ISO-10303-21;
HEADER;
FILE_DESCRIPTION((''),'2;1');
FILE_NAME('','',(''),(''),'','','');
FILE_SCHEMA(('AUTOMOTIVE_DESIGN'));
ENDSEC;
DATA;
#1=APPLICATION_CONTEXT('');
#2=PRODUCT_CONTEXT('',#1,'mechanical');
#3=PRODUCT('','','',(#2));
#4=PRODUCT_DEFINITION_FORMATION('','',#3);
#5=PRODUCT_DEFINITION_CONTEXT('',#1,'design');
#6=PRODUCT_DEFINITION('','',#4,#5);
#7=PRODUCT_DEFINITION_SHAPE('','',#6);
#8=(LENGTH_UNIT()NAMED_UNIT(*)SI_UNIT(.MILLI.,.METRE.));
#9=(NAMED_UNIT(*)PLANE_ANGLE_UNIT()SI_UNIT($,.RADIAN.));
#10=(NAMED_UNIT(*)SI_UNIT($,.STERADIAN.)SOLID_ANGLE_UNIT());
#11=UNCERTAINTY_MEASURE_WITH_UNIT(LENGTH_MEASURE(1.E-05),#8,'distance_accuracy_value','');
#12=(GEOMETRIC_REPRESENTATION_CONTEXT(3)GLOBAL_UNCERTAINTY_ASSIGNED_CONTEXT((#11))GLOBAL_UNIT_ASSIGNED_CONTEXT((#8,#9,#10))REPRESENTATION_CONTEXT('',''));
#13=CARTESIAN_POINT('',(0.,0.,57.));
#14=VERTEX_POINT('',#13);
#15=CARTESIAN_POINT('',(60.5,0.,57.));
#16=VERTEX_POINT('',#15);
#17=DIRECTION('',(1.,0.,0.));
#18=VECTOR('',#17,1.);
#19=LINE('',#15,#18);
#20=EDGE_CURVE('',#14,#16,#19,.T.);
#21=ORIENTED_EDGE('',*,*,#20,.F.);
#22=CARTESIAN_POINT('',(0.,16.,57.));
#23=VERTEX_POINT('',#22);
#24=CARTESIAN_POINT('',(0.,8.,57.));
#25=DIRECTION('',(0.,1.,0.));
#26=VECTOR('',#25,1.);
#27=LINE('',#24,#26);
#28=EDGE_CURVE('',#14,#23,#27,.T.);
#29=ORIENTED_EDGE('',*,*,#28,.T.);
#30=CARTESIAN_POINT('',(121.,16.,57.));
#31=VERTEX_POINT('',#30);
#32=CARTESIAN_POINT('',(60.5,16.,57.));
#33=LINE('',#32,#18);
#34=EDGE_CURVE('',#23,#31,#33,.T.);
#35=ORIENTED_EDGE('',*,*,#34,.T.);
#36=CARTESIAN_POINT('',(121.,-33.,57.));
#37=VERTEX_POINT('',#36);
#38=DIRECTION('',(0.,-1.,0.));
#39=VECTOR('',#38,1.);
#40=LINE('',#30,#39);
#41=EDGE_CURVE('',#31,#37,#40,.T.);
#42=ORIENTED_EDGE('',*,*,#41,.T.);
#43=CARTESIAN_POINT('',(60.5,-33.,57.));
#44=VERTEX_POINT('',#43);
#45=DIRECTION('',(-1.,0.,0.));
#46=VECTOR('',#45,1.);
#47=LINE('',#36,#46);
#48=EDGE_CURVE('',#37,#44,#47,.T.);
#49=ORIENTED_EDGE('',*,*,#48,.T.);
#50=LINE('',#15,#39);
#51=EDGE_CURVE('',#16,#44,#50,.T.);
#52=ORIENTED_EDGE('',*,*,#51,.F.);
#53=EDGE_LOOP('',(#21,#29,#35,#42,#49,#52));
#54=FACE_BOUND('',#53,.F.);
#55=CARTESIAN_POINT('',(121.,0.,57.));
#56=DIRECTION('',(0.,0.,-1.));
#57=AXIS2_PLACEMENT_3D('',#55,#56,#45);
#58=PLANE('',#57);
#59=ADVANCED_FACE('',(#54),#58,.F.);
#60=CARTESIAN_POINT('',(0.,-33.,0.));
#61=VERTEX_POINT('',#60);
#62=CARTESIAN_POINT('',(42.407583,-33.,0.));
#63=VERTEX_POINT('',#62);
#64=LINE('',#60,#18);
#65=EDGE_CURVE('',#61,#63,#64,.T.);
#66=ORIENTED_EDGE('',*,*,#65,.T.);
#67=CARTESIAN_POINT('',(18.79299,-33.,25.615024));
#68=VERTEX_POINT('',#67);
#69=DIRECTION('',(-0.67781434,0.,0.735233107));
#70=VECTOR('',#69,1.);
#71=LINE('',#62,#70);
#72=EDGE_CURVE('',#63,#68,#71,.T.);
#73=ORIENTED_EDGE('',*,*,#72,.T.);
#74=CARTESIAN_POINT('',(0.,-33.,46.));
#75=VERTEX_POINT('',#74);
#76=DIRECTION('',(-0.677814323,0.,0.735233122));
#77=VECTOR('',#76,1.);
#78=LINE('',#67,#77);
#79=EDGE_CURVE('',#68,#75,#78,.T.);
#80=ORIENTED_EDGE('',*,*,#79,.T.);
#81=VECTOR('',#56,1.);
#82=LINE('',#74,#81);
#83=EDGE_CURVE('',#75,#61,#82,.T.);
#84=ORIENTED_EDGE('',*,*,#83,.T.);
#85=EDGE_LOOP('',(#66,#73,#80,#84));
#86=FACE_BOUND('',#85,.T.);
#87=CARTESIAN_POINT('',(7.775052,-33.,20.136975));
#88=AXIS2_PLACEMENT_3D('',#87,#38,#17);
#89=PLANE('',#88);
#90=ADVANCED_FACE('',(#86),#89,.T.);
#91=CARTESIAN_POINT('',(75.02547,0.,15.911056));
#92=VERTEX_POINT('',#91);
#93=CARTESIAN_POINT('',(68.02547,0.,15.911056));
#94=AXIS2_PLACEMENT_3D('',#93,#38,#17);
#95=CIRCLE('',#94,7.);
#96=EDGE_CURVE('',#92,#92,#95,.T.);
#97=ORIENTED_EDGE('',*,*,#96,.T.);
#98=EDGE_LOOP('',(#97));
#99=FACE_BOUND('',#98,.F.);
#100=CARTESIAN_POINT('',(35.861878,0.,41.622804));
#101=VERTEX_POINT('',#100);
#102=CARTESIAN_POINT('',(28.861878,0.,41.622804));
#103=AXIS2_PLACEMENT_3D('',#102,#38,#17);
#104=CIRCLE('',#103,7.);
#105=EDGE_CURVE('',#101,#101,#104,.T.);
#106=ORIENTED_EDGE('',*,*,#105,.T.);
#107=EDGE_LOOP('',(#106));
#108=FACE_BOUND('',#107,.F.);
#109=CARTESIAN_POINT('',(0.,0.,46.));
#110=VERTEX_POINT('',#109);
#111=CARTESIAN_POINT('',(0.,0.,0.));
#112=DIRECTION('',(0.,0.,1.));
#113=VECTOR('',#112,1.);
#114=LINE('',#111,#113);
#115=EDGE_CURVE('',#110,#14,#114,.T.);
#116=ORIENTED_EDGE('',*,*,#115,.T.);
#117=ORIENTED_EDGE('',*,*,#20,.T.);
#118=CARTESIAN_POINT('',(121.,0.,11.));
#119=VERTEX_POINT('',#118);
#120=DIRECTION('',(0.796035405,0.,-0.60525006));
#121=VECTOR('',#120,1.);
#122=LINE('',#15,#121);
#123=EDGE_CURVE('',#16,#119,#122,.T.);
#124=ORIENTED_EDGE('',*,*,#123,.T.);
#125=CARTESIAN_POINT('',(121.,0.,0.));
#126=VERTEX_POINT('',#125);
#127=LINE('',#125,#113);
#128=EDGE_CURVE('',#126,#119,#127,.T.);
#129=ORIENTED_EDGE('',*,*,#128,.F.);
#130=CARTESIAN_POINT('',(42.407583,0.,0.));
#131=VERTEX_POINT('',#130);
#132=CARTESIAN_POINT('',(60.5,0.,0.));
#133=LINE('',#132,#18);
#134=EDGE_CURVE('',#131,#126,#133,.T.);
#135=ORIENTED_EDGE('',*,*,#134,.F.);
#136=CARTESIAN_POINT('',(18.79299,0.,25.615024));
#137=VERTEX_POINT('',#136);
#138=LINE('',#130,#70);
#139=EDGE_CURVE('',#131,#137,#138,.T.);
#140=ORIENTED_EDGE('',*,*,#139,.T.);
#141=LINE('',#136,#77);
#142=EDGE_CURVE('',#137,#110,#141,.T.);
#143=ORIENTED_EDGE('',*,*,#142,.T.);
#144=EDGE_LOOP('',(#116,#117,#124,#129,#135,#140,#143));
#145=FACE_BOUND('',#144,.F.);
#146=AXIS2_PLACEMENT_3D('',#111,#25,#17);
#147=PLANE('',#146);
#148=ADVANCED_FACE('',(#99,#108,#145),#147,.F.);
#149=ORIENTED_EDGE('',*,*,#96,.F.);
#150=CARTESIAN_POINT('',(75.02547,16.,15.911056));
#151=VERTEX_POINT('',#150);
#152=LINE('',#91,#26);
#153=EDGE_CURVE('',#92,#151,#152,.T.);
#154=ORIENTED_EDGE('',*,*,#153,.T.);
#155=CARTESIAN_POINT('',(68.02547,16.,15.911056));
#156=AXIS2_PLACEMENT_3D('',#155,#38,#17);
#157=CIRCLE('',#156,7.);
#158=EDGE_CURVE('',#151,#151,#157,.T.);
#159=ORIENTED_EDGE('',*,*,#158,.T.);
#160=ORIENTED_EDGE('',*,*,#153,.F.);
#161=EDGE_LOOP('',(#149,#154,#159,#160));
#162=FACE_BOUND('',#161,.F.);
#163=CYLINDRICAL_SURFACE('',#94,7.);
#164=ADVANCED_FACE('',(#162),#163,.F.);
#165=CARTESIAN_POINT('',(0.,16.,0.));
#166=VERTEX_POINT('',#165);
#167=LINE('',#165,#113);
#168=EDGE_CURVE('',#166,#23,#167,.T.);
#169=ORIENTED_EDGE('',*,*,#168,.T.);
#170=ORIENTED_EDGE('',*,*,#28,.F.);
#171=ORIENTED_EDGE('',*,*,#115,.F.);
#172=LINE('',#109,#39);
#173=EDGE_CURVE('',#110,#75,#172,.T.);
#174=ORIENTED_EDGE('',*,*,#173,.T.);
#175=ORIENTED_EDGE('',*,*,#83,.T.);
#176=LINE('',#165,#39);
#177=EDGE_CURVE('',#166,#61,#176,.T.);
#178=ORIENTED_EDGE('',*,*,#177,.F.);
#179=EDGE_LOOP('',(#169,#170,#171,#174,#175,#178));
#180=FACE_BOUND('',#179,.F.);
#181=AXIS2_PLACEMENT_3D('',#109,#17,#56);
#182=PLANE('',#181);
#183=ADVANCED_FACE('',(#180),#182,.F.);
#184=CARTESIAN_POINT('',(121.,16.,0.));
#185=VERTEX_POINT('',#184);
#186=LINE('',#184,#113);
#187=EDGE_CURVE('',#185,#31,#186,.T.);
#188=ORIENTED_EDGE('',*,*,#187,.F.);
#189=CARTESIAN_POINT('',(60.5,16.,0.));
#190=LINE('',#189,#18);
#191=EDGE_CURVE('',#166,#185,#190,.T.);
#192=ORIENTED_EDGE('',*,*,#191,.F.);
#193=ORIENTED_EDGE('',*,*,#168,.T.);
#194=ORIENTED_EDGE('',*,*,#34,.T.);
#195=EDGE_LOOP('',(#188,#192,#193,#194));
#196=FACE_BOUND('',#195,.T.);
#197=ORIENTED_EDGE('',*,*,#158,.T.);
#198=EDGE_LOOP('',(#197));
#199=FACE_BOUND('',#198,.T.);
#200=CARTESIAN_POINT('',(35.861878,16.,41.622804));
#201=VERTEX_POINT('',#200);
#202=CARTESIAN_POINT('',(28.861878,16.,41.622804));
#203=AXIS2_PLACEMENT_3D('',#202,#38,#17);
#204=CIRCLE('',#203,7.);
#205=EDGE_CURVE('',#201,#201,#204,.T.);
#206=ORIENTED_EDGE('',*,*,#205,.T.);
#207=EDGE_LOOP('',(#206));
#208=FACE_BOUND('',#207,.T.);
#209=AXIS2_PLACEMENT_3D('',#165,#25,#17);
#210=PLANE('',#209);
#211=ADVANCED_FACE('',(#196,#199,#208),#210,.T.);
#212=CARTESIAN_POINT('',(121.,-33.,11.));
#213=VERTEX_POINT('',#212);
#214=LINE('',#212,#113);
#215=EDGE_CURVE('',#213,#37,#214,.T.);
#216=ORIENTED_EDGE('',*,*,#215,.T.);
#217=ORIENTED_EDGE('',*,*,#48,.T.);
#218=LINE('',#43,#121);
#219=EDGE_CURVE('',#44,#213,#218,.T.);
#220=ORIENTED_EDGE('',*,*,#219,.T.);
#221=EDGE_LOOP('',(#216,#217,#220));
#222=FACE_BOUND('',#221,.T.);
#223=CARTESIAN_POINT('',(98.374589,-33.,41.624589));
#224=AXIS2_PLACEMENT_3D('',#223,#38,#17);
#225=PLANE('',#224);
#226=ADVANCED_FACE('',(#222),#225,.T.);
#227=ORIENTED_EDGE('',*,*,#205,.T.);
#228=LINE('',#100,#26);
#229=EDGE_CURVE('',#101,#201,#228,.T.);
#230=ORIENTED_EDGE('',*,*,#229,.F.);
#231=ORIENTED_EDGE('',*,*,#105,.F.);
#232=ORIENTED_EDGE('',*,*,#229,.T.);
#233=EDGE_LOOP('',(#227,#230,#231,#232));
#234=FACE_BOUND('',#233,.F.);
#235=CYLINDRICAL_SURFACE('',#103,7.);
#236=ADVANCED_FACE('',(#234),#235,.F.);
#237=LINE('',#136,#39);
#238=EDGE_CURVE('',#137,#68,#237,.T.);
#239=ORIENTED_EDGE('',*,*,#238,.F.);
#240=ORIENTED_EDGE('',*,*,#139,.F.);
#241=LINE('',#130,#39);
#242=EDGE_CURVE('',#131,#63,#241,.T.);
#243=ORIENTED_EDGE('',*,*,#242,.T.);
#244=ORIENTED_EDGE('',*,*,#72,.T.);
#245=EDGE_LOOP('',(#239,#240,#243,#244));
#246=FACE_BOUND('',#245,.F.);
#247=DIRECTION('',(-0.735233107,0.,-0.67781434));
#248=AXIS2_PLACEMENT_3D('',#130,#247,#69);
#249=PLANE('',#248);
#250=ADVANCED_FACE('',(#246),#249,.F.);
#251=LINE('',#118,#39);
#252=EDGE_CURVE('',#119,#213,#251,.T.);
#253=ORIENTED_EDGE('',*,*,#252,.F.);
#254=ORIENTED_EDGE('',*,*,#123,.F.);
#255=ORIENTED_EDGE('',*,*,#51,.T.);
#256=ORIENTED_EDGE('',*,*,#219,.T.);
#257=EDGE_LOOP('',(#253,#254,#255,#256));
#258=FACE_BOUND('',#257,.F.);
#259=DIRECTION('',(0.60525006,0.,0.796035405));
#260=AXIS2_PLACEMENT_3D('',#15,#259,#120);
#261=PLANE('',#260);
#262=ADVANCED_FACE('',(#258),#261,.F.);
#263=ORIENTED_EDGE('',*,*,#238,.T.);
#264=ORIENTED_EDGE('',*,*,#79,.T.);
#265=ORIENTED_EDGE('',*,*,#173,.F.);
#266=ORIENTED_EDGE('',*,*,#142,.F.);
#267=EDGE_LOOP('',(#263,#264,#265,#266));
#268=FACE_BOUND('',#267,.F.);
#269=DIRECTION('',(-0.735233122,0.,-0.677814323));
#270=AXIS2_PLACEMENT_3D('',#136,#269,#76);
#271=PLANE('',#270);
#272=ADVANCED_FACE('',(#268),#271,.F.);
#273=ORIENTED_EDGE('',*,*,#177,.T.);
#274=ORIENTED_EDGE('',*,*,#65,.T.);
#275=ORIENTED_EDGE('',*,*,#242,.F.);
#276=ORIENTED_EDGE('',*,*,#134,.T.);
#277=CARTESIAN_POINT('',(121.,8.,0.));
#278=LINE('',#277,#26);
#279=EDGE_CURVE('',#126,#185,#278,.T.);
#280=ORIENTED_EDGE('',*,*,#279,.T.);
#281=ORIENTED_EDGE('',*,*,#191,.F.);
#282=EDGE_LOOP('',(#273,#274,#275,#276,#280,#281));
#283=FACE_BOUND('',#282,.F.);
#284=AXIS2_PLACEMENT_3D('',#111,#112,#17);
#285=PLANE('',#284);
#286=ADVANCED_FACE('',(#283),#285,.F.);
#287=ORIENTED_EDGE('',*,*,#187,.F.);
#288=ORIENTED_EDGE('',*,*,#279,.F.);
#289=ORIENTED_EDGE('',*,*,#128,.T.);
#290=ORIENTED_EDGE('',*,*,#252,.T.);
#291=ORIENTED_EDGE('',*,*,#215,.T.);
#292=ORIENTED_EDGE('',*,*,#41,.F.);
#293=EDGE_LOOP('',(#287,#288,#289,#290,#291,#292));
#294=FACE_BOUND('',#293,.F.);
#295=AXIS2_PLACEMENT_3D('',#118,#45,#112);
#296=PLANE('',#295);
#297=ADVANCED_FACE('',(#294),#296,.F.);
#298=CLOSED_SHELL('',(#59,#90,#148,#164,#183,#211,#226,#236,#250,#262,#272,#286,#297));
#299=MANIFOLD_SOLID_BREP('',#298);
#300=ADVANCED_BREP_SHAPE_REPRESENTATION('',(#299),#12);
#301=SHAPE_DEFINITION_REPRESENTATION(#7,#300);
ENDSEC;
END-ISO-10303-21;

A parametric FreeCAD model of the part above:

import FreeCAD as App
import Part
import Sketcher
Q = App.Units.Quantity


def add_polygon(sketch, points):
    """Adds a closed chain of lines whose ends are joined by coincident constraints."""
    first, n = sketch.GeometryCount, len(points)
    for a, b in zip(points, points[1:] + points[:1]):
        sketch.addGeometry(Part.LineSegment(App.Vector(*a, 0), App.Vector(*b, 0)), False)
    for i in range(n):
        sketch.addConstraint(Sketcher.Constraint("Coincident", first + i, 2, first + (i + 1) % n, 1))

doc = App.newDocument("Part")
params = doc.addObject("Spreadsheet::Sheet", "Params")
for row, (alias, value) in enumerate([
    ("sketch1_width", "121 mm"),
    ("sketch1_height", "16 mm"),
    ("pad1_length", "57 mm"),
    ("sketch2_height", "46 mm"),
    ("pad2_length", "33 mm"),
    ("sketch3_height", "46 mm"),
    ("sketch3_width", "60.5 mm"),
    ("pad3_length", "33 mm"),
    ("sketch4_diameter", "14 mm"),
], start=1):
    params.set(f"A{row}", alias)
    params.set(f"B{row}", "=" + value)
    params.setAlias(f"B{row}", alias)

body = doc.addObject("PartDesign::Body", "Body")

# Sketch on XY plane
sketch1 = body.newObject("Sketcher::SketchObject", "Sketch")
sketch1.AttachmentSupport = (doc.getObject("XY_Plane"), [""])
sketch1.MapMode = "FlatFace"
add_polygon(sketch1, [(0, 16), (0, 0), (121, 0), (121, 16)])  # lines 0-3
sketch1.addConstraint([
    Sketcher.Constraint("Vertical", 0),
    Sketcher.Constraint("Horizontal", 1),
    Sketcher.Constraint("Vertical", 2),
    Sketcher.Constraint("Horizontal", 3),
    Sketcher.Constraint("Coincident", 0, 2, -1, 1),
    Sketcher.Constraint("DistanceX", 1, 1, 1, 2, Q("121 mm")),
    Sketcher.Constraint("DistanceY", 0, 2, 0, 1, Q("16 mm")),
])
sketch1.setExpression("Constraints[9]", "Params.sketch1_width")
sketch1.setExpression("Constraints[10]", "Params.sketch1_height")
pad1 = body.newObject("PartDesign::Pad", "Pad")
pad1.Profile = sketch1
pad1.setExpression("Length", "Params.pad1_length")

# Sketch on XZ plane
sketch2 = body.newObject("Sketcher::SketchObject", "Sketch001")
sketch2.AttachmentSupport = (doc.getObject("XZ_Plane"), [""])
sketch2.MapMode = "FlatFace"
add_polygon(sketch2, [(19, 26), (0, 46), (0, 0), (42, 0)])  # lines 0-3
sketch2.addConstraint([
    Sketcher.Constraint("Vertical", 1),
    Sketcher.Constraint("Horizontal", 2),
    Sketcher.Constraint("Coincident", 1, 2, -1, 1),
    Sketcher.Constraint("Parallel", 0, 3),
    Sketcher.Constraint("DistanceY", 1, 2, 1, 1, Q("46 mm")),
    Sketcher.Constraint("DistanceX", 2, 1, 2, 2, Q("42.407583 mm")),
    Sketcher.Constraint("DistanceX", -1, 1, 3, 2, Q("18.79299 mm")),
])
sketch2.setExpression("Constraints[8]", "Params.sketch2_height")
pad2 = body.newObject("PartDesign::Pad", "Pad001")
pad2.Profile = sketch2
pad2.setExpression("Length", "Params.pad2_length")

# Sketch on XZ plane
sketch3 = body.newObject("Sketcher::SketchObject", "Sketch002")
sketch3.AttachmentSupport = (doc.getObject("XZ_Plane"), [""])
sketch3.MapMode = "FlatFace"
add_polygon(sketch3, [(121, 11), (121, 57), (60, 57)])  # lines 0-2
sketch3.addConstraint([
    Sketcher.Constraint("Vertical", 0),
    Sketcher.Constraint("Horizontal", 1),
    Sketcher.Constraint("DistanceY", 0, 1, 0, 2, Q("46 mm")),
    Sketcher.Constraint("DistanceX", 1, 2, 1, 1, Q("60.5 mm")),
    Sketcher.Constraint("DistanceX", -1, 1, 0, 2, Q("121 mm")),
    Sketcher.Constraint("DistanceY", -1, 1, 0, 2, Q("57 mm")),
])
sketch3.setExpression("Constraints[5]", "Params.sketch3_height")
sketch3.setExpression("Constraints[6]", "Params.sketch3_width")
pad3 = body.newObject("PartDesign::Pad", "Pad002")
pad3.Profile = sketch3
pad3.setExpression("Length", "Params.pad3_length")

# Sketch on XZ plane
sketch4 = body.newObject("Sketcher::SketchObject", "Sketch003")
sketch4.AttachmentSupport = (doc.getObject("XZ_Plane"), [""])
sketch4.MapMode = "FlatFace"
sketch4.addGeometry([
    Part.Circle(App.Vector(29, 42, 0), App.Vector(0, 0, 1), 7),
    Part.Circle(App.Vector(68, 16, 0), App.Vector(0, 0, 1), 7),
], False)
sketch4.addConstraint([
    Sketcher.Constraint("Equal", 0, 1),
    Sketcher.Constraint("Diameter", 0, Q("14 mm")),
    Sketcher.Constraint("DistanceX", -1, 1, 0, 3, Q("28.861878 mm")),
    Sketcher.Constraint("DistanceX", -1, 1, 1, 3, Q("68.02547 mm")),
    Sketcher.Constraint("DistanceY", 1, 3, 0, 3, Q("25.711748 mm")),
    Sketcher.Constraint("DistanceY", -1, 1, 0, 3, Q("41.622804 mm")),
])
sketch4.setExpression("Constraints[1]", "Params.sketch4_diameter")
pocket1 = body.newObject("PartDesign::Pocket", "Pocket")
pocket1.Profile = sketch4
pocket1.Type = "ThroughAll"

doc.recompute()
